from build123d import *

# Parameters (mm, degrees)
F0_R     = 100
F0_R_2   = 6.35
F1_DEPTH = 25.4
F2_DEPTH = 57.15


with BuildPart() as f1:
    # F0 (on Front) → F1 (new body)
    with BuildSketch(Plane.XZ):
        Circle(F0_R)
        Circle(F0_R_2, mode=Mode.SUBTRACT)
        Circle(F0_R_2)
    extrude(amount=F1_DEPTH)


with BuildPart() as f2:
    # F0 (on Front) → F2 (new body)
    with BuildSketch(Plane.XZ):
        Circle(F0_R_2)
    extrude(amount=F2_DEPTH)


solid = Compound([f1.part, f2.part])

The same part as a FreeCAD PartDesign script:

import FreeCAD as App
import Part
import Sketcher

V = App.Vector
Q = App.Units.Quantity

doc = App.newDocument("Part")
params = doc.addObject("Spreadsheet::Sheet", "Params")
for row, (alias, value) in enumerate([
    ("pad1_length", "1 in"),
    ("sketch2_diameter", "0.5 in"),
    ("pad2_length", "2.25 in"),
], start=1):
    params.set(f"A{row}", alias)
    params.set(f"B{row}", "=" + value)
    params.setAlias(f"B{row}", alias)

body = doc.addObject("PartDesign::Body", "Body")

sketch1 = body.newObject("Sketcher::SketchObject", "Sketch")
sketch1.AttachmentSupport = (doc.getObject("XZ_Plane"), [""])
sketch1.MapMode = "FlatFace"
sketch1.addGeometry(Part.Circle(V(0, 0, 0), V(0, 0, 1), 100), False)
sketch1.addConstraint(Sketcher.Constraint("Coincident", 0, 3, -1, 1))
sketch1.addConstraint(Sketcher.Constraint("Diameter", 0, 200.0))
pad1 = body.newObject("PartDesign::Pad", "Pad")
pad1.Profile = sketch1
pad1.setExpression("Length", "Params.pad1_length")
body2 = doc.addObject("PartDesign::Body", "Body001")

sketch2 = body2.newObject("Sketcher::SketchObject", "Sketch001")
sketch2.AttachmentSupport = (doc.getObject("XZ_Plane001"), [""])
sketch2.MapMode = "FlatFace"
sketch2.addGeometry(Part.Circle(V(0, 0, 0), V(0, 0, 1), 6), False)
sketch2.addConstraint(Sketcher.Constraint("Coincident", 0, 3, -1, 1))
sketch2.addConstraint(Sketcher.Constraint("Diameter", 0, Q("0.5 in")))
sketch2.setExpression("Constraints[1]", "Params.sketch2_diameter")
pad2 = body2.newObject("PartDesign::Pad", "Pad001")
pad2.Profile = sketch2
pad2.setExpression("Length", "Params.pad2_length")

doc.recompute()
